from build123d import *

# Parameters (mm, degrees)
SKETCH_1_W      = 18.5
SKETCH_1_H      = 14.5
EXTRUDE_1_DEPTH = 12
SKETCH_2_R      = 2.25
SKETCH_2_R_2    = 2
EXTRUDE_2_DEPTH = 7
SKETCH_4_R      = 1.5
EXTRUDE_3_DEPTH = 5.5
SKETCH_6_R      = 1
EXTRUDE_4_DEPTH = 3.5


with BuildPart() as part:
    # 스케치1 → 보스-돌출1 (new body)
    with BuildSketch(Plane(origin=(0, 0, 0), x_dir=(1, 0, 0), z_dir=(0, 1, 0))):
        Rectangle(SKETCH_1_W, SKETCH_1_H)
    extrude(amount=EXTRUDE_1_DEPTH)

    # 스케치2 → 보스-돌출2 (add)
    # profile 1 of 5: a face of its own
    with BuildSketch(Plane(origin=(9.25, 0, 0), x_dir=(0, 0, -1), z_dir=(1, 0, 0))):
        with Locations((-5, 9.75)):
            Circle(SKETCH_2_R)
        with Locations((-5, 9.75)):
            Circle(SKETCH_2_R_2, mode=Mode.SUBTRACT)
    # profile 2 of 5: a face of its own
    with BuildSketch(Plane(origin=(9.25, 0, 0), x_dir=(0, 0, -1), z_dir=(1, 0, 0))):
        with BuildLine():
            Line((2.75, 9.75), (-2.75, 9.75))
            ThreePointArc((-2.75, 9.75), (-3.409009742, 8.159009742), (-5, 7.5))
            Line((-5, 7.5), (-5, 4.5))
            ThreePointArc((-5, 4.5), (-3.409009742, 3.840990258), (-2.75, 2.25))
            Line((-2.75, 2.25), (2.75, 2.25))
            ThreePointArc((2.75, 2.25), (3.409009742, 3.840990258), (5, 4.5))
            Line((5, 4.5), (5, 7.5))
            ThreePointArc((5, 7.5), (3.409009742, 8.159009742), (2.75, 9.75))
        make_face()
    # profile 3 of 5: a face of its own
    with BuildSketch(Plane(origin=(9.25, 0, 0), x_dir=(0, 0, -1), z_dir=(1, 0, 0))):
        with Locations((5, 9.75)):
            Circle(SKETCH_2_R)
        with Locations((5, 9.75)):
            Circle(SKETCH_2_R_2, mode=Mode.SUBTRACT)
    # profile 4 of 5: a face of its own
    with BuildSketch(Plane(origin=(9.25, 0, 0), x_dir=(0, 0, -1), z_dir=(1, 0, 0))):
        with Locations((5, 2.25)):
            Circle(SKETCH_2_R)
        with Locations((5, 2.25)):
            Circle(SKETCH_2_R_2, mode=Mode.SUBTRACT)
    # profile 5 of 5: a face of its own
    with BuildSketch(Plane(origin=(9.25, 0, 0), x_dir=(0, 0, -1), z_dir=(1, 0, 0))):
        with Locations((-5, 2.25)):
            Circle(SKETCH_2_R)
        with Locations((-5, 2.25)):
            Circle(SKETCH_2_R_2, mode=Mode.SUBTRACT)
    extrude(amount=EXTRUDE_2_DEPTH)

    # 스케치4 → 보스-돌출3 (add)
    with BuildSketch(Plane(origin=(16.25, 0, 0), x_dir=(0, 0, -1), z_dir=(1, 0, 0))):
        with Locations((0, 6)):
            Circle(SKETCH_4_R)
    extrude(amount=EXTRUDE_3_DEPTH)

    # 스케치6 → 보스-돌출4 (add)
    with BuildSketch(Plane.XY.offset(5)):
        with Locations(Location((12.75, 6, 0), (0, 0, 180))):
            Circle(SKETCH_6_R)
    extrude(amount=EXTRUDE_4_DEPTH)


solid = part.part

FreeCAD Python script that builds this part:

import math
import FreeCAD as App
import Part
import Sketcher


def add_polygon(sketch, points):
    """Adds a closed chain of lines whose ends are joined by coincident constraints."""
    first, n = sketch.GeometryCount, len(points)
    for a, b in zip(points, points[1:] + points[:1]):
        sketch.addGeometry(Part.LineSegment(App.Vector(*a, 0), App.Vector(*b, 0)), False)
    for i in range(n):
        sketch.addConstraint(Sketcher.Constraint("Coincident", first + i, 2, first + (i + 1) % n, 1))

doc = App.newDocument("Part")
body = doc.addObject("PartDesign::Body", "Body")

sketch1 = body.newObject("Sketcher::SketchObject", "Sketch")
sketch1.AttachmentSupport = (doc.getObject("XZ_Plane"), [""])
sketch1.MapMode = "FlatFace"
add_polygon(sketch1, [(-9.25, -7.25), (-9.25, 7.25), (9.25, 7.25), (9.25, -7.25)])
sketch1.addConstraint([
    Sketcher.Constraint("Vertical", 0),
    Sketcher.Constraint("Horizontal", 1),
    Sketcher.Constraint("Vertical", 2),
    Sketcher.Constraint("Horizontal", 3),
    Sketcher.Constraint("Symmetric", 0, 2, 2, 2, -1, 1),
    Sketcher.Constraint("DistanceX", 1, 1, 1, 2, 18.5),
    Sketcher.Constraint("DistanceY", 0, 1, 0, 2, 14.5),
])
pad1 = body.newObject("PartDesign::Pad", "Pad")
pad1.Profile = sketch1
pad1.Length = 12
pad1.Reversed = True

sketch2 = body.newObject("Sketcher::SketchObject", "Sketch001")
sketch2.AttachmentSupport = (doc.getObject("YZ_Plane"), [""])
sketch2.MapMode = "FlatFace"
sketch2.AttachmentOffset = App.Placement(App.Vector(0, 0, 9.25), App.Rotation())
sketch2.addGeometry([
    Part.ArcOfCircle(Part.Circle(App.Vector(9.75, 5, 0), App.Vector(0, 0, 1), 2.25), math.radians(-90), math.radians(180)),
    Part.LineSegment(App.Vector(7.5, 5, 0), App.Vector(4.5, 5, 0)),
    Part.ArcOfCircle(Part.Circle(App.Vector(2.25, 5, 0), App.Vector(0, 0, 1), 2.25), math.radians(0), math.radians(270)),
    Part.LineSegment(App.Vector(2.25, 2.75, 0), App.Vector(2.25, -2.75, 0)),
    Part.ArcOfCircle(Part.Circle(App.Vector(2.25, -5, 0), App.Vector(0, 0, 1), 2.25), math.radians(90), math.radians(360)),
    Part.LineSegment(App.Vector(4.5, -5, 0), App.Vector(7.5, -5, 0)),
    Part.ArcOfCircle(Part.Circle(App.Vector(9.75, -5, 0), App.Vector(0, 0, 1), 2.25), math.radians(180), math.radians(450)),
    Part.LineSegment(App.Vector(9.75, -2.75, 0), App.Vector(9.75, 2.75, 0)),
    Part.Circle(App.Vector(9.75, 5, 0), App.Vector(0, 0, 1), 2),
    Part.Circle(App.Vector(9.75, -5, 0), App.Vector(0, 0, 1), 2),
    Part.Circle(App.Vector(2.25, 5, 0), App.Vector(0, 0, 1), 2),
    Part.Circle(App.Vector(2.25, -5, 0), App.Vector(0, 0, 1), 2),
], False)
sketch2.addConstraint([
    Sketcher.Constraint("Coincident", 0, 2, 1, 1),
    Sketcher.Constraint("Coincident", 1, 2, 2, 1),
    Sketcher.Constraint("Coincident", 2, 2, 3, 1),
    Sketcher.Constraint("Coincident", 3, 2, 4, 1),
    Sketcher.Constraint("Coincident", 4, 2, 5, 1),
    Sketcher.Constraint("Coincident", 5, 2, 6, 1),
    Sketcher.Constraint("Coincident", 6, 2, 7, 1),
    Sketcher.Constraint("Coincident", 7, 2, 0, 1),
    Sketcher.Constraint("Horizontal", 1),
    Sketcher.Constraint("Vertical", 3),
    Sketcher.Constraint("Horizontal", 5),
    Sketcher.Constraint("Vertical", 7),
    Sketcher.Constraint("Coincident", 8, 3, 0, 3),
    Sketcher.Constraint("Coincident", 9, 3, 6, 3),
    Sketcher.Constraint("Coincident", 10, 3, 2, 3),
    Sketcher.Constraint("Coincident", 11, 3, 4, 3),
    Sketcher.Constraint("Equal", 0, 2),
    Sketcher.Constraint("Equal", 2, 4),
    Sketcher.Constraint("Equal", 4, 6),
    Sketcher.Constraint("Equal", 8, 9),
    Sketcher.Constraint("Equal", 9, 10),
    Sketcher.Constraint("Equal", 10, 11),
    Sketcher.Constraint("Symmetric", 2, 3, 4, 3, -1),
    Sketcher.Constraint("Symmetric", 0, 3, 6, 3, -1),
    Sketcher.Constraint("Horizontal", 0, 3, 2, 3),
    Sketcher.Constraint("Horizontal", 10, 3, 0, 2),
    Sketcher.Constraint("Horizontal", 11, 3, 4, 2),
    Sketcher.Constraint("Vertical", 11, 3, 2, 2),
    Sketcher.Constraint("Vertical", 9, 3, 6, 2),
    Sketcher.Constraint("Diameter", 8, 4.0),
    Sketcher.Constraint("DistanceX", 1, 2, 1, 1, 3.0),
    Sketcher.Constraint("Radius", 0, 2.25),
    Sketcher.Constraint("DistanceY", 3, 2, 3, 1, 5.5),
    Sketcher.Constraint("DistanceX", -1, 1, 0, 2, 7.5),
])
pad2 = body.newObject("PartDesign::Pad", "Pad001")
pad2.Profile = sketch2
pad2.Length = 7

sketch3 = body.newObject("Sketcher::SketchObject", "Sketch002")
sketch3.AttachmentSupport = (doc.getObject("YZ_Plane"), [""])
sketch3.MapMode = "FlatFace"
sketch3.AttachmentOffset = App.Placement(App.Vector(0, 0, 16.25), App.Rotation())
sketch3.addGeometry(Part.Circle(App.Vector(6, 0, 0), App.Vector(0, 0, 1), 1.5), False)
sketch3.addConstraint([
    Sketcher.Constraint("PointOnObject", 0, 3, -1),
    Sketcher.Constraint("Diameter", 0, 3.0),
    Sketcher.Constraint("DistanceX", -1, 1, 0, 3, 6.0),
])
pad3 = body.newObject("PartDesign::Pad", "Pad002")
pad3.Profile = sketch3
pad3.Length = 5.5

sketch4 = body.newObject("Sketcher::SketchObject", "Sketch003")
sketch4.AttachmentSupport = (doc.getObject("XY_Plane"), [""])
sketch4.MapMode = "FlatFace"
sketch4.AttachmentOffset = App.Placement(App.Vector(0, 0, 5), App.Rotation())
sketch4.addGeometry(Part.Circle(App.Vector(12.75, 6, 0), App.Vector(0, 0, 1), 1), False)
sketch4.addConstraint([
    Sketcher.Constraint("Diameter", 0, 2.0),
    Sketcher.Constraint("DistanceY", -1, 1, 0, 3, 6.0),
    Sketcher.Constraint("DistanceX", -1, 1, 0, 3, 12.75),
])
pad4 = body.newObject("PartDesign::Pad", "Pad003")
pad4.Profile = sketch4
pad4.Length = 3.5

doc.recompute()
